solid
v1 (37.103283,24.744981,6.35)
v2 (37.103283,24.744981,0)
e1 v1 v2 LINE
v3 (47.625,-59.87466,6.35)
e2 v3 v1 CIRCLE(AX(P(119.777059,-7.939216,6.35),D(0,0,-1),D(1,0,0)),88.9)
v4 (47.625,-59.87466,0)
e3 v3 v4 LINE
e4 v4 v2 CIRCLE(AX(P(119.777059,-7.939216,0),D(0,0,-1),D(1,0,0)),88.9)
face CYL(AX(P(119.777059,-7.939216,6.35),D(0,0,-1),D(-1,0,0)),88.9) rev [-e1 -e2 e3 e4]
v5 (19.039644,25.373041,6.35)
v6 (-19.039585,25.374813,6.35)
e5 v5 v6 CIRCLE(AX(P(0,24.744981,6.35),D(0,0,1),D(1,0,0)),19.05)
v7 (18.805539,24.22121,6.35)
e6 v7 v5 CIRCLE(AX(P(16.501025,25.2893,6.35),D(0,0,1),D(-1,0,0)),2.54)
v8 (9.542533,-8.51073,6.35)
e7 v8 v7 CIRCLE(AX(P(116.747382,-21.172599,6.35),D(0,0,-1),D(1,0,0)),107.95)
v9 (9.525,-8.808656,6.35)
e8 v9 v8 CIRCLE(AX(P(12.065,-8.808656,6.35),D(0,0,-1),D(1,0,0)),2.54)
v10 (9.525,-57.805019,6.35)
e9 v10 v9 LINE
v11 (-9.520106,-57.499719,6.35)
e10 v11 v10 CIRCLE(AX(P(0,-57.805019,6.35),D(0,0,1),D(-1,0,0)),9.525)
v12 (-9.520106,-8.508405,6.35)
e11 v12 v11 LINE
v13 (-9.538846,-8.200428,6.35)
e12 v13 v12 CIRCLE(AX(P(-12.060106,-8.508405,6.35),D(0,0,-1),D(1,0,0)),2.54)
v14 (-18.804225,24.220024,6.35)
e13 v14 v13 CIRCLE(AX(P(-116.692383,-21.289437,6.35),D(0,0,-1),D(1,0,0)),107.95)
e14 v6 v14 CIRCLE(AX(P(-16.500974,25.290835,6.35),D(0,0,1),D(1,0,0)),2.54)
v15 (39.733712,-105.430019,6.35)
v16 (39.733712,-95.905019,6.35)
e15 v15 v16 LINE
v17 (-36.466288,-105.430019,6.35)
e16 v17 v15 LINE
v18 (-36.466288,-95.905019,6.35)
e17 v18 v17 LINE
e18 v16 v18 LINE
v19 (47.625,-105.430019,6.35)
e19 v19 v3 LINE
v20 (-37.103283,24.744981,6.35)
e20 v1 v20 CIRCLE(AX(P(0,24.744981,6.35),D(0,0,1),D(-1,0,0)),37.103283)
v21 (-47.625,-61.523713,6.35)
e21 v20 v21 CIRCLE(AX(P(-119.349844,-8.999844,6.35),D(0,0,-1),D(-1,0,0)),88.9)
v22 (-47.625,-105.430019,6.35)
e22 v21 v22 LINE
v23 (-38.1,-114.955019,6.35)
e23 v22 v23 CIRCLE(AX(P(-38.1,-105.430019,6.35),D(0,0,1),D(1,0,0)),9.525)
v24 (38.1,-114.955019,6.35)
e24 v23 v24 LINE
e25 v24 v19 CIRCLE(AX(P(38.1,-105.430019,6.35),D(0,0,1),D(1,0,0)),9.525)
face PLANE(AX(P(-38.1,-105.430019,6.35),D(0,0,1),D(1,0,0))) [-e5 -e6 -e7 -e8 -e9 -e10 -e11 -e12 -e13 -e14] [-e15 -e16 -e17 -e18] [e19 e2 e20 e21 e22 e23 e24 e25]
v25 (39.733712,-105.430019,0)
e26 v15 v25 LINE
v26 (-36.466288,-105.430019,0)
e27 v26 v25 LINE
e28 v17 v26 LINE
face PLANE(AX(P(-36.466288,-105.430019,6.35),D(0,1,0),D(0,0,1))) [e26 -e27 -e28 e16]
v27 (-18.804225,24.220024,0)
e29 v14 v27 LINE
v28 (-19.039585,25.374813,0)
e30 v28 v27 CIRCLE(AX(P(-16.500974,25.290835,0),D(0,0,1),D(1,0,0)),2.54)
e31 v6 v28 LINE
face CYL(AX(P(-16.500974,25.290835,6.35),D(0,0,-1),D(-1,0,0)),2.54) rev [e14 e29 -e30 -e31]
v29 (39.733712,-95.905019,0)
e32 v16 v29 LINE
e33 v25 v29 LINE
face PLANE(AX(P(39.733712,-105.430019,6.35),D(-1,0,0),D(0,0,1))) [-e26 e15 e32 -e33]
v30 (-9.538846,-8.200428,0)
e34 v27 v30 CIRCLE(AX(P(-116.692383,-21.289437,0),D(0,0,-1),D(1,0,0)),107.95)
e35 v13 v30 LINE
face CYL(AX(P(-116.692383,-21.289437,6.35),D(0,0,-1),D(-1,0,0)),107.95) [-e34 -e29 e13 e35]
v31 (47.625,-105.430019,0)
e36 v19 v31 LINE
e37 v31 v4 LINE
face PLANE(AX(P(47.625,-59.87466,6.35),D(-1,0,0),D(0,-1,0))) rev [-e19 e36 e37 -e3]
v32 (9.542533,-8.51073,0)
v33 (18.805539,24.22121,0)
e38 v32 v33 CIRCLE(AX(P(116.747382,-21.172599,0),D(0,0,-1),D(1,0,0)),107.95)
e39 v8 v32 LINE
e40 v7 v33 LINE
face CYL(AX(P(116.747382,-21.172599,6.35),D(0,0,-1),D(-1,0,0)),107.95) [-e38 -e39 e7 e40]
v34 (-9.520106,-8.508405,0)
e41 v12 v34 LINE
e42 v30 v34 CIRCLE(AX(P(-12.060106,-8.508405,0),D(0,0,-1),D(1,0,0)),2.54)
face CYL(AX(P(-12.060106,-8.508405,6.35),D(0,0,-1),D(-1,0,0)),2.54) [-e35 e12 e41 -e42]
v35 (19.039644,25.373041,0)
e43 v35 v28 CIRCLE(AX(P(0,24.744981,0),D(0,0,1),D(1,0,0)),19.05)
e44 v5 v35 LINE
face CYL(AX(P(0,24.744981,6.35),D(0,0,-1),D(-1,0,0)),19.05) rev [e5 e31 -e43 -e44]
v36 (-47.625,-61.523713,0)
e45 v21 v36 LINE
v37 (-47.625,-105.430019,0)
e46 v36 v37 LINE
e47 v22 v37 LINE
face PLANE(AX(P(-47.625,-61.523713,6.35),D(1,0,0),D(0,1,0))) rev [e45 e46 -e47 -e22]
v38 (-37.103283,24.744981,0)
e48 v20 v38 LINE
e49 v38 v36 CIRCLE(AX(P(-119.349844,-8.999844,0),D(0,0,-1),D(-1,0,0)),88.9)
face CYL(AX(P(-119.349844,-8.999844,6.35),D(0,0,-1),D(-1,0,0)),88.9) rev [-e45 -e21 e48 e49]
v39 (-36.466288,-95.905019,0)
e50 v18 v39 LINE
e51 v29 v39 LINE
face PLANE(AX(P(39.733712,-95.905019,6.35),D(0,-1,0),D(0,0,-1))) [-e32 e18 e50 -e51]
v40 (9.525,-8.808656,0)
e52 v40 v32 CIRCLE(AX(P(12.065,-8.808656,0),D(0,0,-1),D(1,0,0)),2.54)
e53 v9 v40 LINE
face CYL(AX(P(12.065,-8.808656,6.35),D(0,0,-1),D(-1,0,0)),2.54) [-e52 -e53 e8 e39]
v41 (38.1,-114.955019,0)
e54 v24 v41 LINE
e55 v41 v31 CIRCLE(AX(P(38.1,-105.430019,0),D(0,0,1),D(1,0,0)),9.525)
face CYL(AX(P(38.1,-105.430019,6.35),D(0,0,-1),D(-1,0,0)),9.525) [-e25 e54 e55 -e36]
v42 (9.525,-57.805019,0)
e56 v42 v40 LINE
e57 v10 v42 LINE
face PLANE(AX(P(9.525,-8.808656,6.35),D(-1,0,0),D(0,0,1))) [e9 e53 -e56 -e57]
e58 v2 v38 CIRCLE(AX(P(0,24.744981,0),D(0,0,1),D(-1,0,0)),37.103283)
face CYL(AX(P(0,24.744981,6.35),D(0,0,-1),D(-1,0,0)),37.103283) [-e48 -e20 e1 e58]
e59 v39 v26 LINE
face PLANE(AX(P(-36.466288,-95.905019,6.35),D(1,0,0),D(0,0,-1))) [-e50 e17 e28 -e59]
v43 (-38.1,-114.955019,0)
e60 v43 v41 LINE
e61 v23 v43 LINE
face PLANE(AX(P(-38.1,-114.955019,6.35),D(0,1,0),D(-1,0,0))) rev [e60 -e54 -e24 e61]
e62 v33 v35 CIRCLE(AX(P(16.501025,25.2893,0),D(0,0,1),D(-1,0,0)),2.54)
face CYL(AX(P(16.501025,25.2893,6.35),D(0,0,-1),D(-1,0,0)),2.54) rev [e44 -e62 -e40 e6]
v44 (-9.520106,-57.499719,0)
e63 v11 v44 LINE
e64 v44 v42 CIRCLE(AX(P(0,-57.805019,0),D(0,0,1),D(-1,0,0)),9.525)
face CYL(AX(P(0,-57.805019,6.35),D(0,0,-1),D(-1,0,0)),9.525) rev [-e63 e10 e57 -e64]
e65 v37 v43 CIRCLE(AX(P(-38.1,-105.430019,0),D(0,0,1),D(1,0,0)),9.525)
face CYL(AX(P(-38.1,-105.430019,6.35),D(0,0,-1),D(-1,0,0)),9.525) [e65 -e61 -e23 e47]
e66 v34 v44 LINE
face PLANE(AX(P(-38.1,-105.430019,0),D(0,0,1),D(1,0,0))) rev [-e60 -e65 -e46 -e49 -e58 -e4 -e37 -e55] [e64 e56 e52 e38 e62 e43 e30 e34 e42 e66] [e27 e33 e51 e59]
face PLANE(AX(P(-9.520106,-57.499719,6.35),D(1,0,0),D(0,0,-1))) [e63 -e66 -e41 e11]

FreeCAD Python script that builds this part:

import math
import FreeCAD as App
import Part
import Sketcher

V = App.Vector
Q = App.Units.Quantity


def add_polygon(sketch, points):
    """Adds a closed chain of lines whose ends are joined by coincident constraints."""
    first, n = sketch.GeometryCount, len(points)
    for a, b in zip(points, points[1:] + points[:1]):
        sketch.addGeometry(Part.LineSegment(App.Vector(*a, 0), App.Vector(*b, 0)), False)
    for i in range(n):
        sketch.addConstraint(Sketcher.Constraint("Coincident", first + i, 2, first + (i + 1) % n, 1))

doc = App.newDocument("Part")
body = doc.addObject("PartDesign::Body", "Body")

# Sketch on XY plane
sketch1 = doc.addObject("Sketcher::SketchObject", "Sketch")
body.addObject(sketch1)
sketch1.AttachmentSupport = (doc.XY_Plane, [""])
sketch1.MapMode = "FlatFace"
sketch1.addGeometry(Part.LineSegment(V(47.62, -105.43, 0), V(47.62, -59.87, 0)), False)  # 0
sketch1.addGeometry(Part.ArcOfCircle(Part.Circle(V(119.78, -7.94, 0), V(0, 0, 1), 88.9), math.radians(158), math.radians(216)), False)  # 1
sketch1.addGeometry(Part.ArcOfCircle(Part.Circle(V(0, 24.74, 0), V(0, 0, 1), 37.1), math.radians(0), math.radians(180)), False)  # 2
sketch1.addGeometry(Part.ArcOfCircle(Part.Circle(V(-119.35, -9, 0), V(0, 0, 1), 88.9), math.radians(-36), math.radians(22)), False)  # 3
sketch1.addGeometry(Part.LineSegment(V(-47.62, -61.52, 0), V(-47.62, -105.43, 0)), False)  # 4
sketch1.addGeometry(Part.ArcOfCircle(Part.Circle(V(-38.1, -105.43, 0), V(0, 0, 1), 9.52), math.radians(180), math.radians(270)), False)  # 5
sketch1.addGeometry(Part.LineSegment(V(-38.1, -114.96, 0), V(38.1, -114.96, 0)), False)  # 6
sketch1.addGeometry(Part.ArcOfCircle(Part.Circle(V(38.1, -105.43, 0), V(0, 0, 1), 9.52), math.radians(-90), math.radians(0)), False)  # 7
add_polygon(sketch1, [(-36.47, -105.43), (-36.47, -95.91), (39.73, -95.91), (39.73, -105.43)])  # lines 8-11
sketch1.addGeometry(Part.LineSegment(V(-9.52, -57.5, 0), V(-9.52, -8.51, 0)), False)  # 12
sketch1.addGeometry(Part.ArcOfCircle(Part.Circle(V(-12.06, -8.51, 0), V(0, 0, 1), 2.54), math.radians(0), math.radians(6.96)), False)  # 13
sketch1.addGeometry(Part.ArcOfCircle(Part.Circle(V(-116.69, -21.29, 0), V(0, 0, 1), 107.95), math.radians(6.96), math.radians(24.93)), False)  # 14
sketch1.addGeometry(Part.ArcOfCircle(Part.Circle(V(-16.5, 25.29, 0), V(0, 0, 1), 2.54), math.radians(178), math.radians(205)), False)  # 15
sketch1.addGeometry(Part.ArcOfCircle(Part.Circle(V(0, 24.74, 0), V(0, 0, 1), 19.05), math.radians(2), math.radians(178)), False)  # 16
sketch1.addGeometry(Part.ArcOfCircle(Part.Circle(V(16.5, 25.29, 0), V(0, 0, 1), 2.54), math.radians(-25), math.radians(2)), False)  # 17
sketch1.addGeometry(Part.ArcOfCircle(Part.Circle(V(116.75, -21.17, 0), V(0, 0, 1), 107.95), math.radians(155.13), math.radians(173.26)), False)  # 18
sketch1.addGeometry(Part.ArcOfCircle(Part.Circle(V(12.07, -8.81, 0), V(0, 0, 1), 2.54), math.radians(173.26), math.radians(180)), False)  # 19
sketch1.addGeometry(Part.LineSegment(V(9.53, -8.81, 0), V(9.53, -57.81, 0)), False)  # 20
sketch1.addGeometry(Part.ArcOfCircle(Part.Circle(V(0, -57.81, 0), V(0, 0, 1), 9.53), math.radians(178), math.radians(360)), False)  # 21
sketch1.addConstraint([
    Sketcher.Constraint("Coincident", 0, 2, 1, 2),
    Sketcher.Constraint("Coincident", 1, 1, 2, 1),
    Sketcher.Constraint("Coincident", 2, 2, 3, 2),
    Sketcher.Constraint("Coincident", 3, 1, 4, 1),
    Sketcher.Constraint("Tangent", 4, 2, 5, 1),
    Sketcher.Constraint("Tangent", 5, 2, 6, 1),
    Sketcher.Constraint("Tangent", 6, 2, 7, 1),
    Sketcher.Constraint("Tangent", 7, 2, 0, 1),
    Sketcher.Constraint("Tangent", 12, 2, 13, 1),
    Sketcher.Constraint("Tangent", 13, 2, 14, 1),
    Sketcher.Constraint("Tangent", 14, 2, 15, 2),
    Sketcher.Constraint("Tangent", 15, 1, 16, 2),
    Sketcher.Constraint("Tangent", 16, 1, 17, 2),
    Sketcher.Constraint("Tangent", 17, 1, 18, 1),
    Sketcher.Constraint("Tangent", 18, 2, 19, 1),
    Sketcher.Constraint("Tangent", 19, 2, 20, 1),
    Sketcher.Constraint("Tangent", 20, 2, 21, 2),
    Sketcher.Constraint("Coincident", 21, 1, 12, 1),
    Sketcher.Constraint("Vertical", 0),
    Sketcher.Constraint("Vertical", 4),
    Sketcher.Constraint("Horizontal", 6),
    Sketcher.Constraint("Vertical", 8),
    Sketcher.Constraint("Horizontal", 9),
    Sketcher.Constraint("Vertical", 10),
    Sketcher.Constraint("Horizontal", 11),
    Sketcher.Constraint("Vertical", 12),
    Sketcher.Constraint("Vertical", 20),
    Sketcher.Constraint("Coincident", 16, 3, 2, 3),
    Sketcher.Constraint("Equal", 1, 3),
    Sketcher.Constraint("Equal", 5, 7),
    Sketcher.Constraint("Equal", 13, 15),
    Sketcher.Constraint("Equal", 15, 17),
    Sketcher.Constraint("Equal", 14, 18),
    Sketcher.Constraint("Equal", 17, 19),
    Sketcher.Constraint("Equal", 7, 21),
    Sketcher.Constraint("Symmetric", 1, 1, 2, 2, -2),
    Sketcher.Constraint("PointOnObject", 21, 3, -2),
    Sketcher.Constraint("Horizontal", 16, 3, 1, 1),
    Sketcher.Constraint("Horizontal", 7, 2, 10, 2),
    Sketcher.Constraint("Equal", 6, 9),
    Sketcher.Constraint("Radius", 1, Q("3.5 in")),
    Sketcher.Constraint("Radius", 13, Q("0.1 in")),
    Sketcher.Constraint("DistanceX", 6, 1, 6, 2, Q("3 in")),
    Sketcher.Constraint("Radius", 14, Q("4.25 in")),
    Sketcher.Constraint("Radius", 16, Q("0.75 in")),
    Sketcher.Constraint("Radius", 5, Q("0.375 in")),
    Sketcher.Constraint("DistanceX", 5, 3, -1, 1, Q("1.5 in")),
    Sketcher.Constraint("DistanceY", 8, 2, 21, 3, Q("1.5 in")),
    Sketcher.Constraint("DistanceY", 8, 1, 8, 2, Q("0.375 in")),
    Sketcher.Constraint("DistanceY", 21, 3, 16, 3, Q("3.25 in")),
    Sketcher.Constraint("Radius", 2, 37.103283),
    Sketcher.Constraint("DistanceY", 0, 1, 0, 2, 45.555359),
    Sketcher.Constraint("DistanceY", -1, 1, 17, 3, 25.2893),
    Sketcher.Constraint("DistanceY", 18, 3, -1, 1, 21.172599),
    Sketcher.Constraint("DistanceX", 15, 3, 17, 3, 33.001999),
    Sketcher.Constraint("DistanceY", 18, 2, 13, 2, 0.310301),
    Sketcher.Constraint("DistanceY", 21, 3, 21, 1, 0.3053),
    Sketcher.Constraint("DistanceY", 4, 2, 4, 1, 43.906306),
    Sketcher.Constraint("DistanceY", 12, 1, 12, 2, 48.991314),
    Sketcher.Constraint("DistanceX", 8, 2, 21, 1, 26.946182),
])
pad1 = doc.addObject("PartDesign::Pad", "Pad")
body.addObject(pad1)
pad1.Profile = sketch1
pad1.Length = Q("0.25 in")

doc.recompute()
